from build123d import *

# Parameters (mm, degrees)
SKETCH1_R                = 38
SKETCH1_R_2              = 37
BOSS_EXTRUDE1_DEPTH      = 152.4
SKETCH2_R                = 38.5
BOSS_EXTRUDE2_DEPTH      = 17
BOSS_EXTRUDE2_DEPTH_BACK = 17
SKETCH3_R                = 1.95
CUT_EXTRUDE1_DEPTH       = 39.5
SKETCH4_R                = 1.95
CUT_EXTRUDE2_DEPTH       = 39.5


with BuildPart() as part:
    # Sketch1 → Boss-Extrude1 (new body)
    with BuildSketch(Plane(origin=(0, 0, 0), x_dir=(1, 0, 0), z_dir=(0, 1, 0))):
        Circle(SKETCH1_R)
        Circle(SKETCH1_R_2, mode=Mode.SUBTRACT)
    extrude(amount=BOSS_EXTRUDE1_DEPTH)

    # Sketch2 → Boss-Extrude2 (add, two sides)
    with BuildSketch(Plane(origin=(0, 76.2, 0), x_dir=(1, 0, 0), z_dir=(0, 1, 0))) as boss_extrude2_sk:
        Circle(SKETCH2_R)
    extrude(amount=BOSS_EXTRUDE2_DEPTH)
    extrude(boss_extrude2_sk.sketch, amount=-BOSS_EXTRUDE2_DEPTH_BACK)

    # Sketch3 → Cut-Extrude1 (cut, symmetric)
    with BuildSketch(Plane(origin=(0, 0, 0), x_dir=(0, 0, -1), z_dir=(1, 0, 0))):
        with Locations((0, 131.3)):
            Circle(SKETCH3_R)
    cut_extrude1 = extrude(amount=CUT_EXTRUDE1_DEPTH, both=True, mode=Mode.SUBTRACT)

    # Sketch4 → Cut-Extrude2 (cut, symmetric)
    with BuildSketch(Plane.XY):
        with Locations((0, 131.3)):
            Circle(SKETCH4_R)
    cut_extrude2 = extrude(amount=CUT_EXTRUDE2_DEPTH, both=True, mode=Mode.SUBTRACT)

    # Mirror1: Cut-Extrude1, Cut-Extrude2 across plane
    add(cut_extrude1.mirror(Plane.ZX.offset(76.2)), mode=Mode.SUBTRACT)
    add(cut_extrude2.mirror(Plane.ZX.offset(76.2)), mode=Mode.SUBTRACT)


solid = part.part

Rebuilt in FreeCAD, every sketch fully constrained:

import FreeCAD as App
import Part
import Sketcher

V = App.Vector

doc = App.newDocument("Part")
params = doc.addObject("Spreadsheet::Sheet", "Params")
for row, (alias, value) in enumerate([
    ("sketch1_diameter", "76 mm"),
    ("sketch1_diameter2", "74 mm"),
    ("pad1_length", "152.4 mm"),
    ("sketch2_diameter", "77 mm"),
    ("pad2_length", "17 mm"),
    ("pad2_length2", "17 mm"),
    ("sketch3_diameter", "3.9 mm"),
    ("pocket1_length", "79 mm"),
    ("sketch4_diameter", "3.9 mm"),
    ("pocket2_length", "79 mm"),
], start=1):
    params.set(f"A{row}", alias)
    params.set(f"B{row}", "=" + value)
    params.setAlias(f"B{row}", alias)

body = doc.addObject("PartDesign::Body", "Body")

# Sketch on XZ plane
sketch1 = body.newObject("Sketcher::SketchObject", "Sketch")
sketch1.AttachmentSupport = (doc.getObject("XZ_Plane"), [""])
sketch1.MapMode = "FlatFace"
sketch1.addGeometry(Part.Circle(V(0, 0, 0), V(0, 0, 1), 38), False)
sketch1.addGeometry(Part.Circle(V(0, 0, 0), V(0, 0, 1), 37), False)
sketch1.addConstraint(Sketcher.Constraint("Coincident", 0, 3, -1, 1))
sketch1.addConstraint(Sketcher.Constraint("Coincident", 1, 3, -1, 1))
sketch1.addConstraint(Sketcher.Constraint("Diameter", 0, 76.0))
sketch1.addConstraint(Sketcher.Constraint("Diameter", 1, 74.0))
sketch1.setExpression("Constraints[2]", "Params.sketch1_diameter")
sketch1.setExpression("Constraints[3]", "Params.sketch1_diameter2")
pad1 = body.newObject("PartDesign::Pad", "Pad")
pad1.Profile = sketch1
pad1.setExpression("Length", "Params.pad1_length")
pad1.Reversed = True

# Sketch on XZ plane
sketch2 = body.newObject("Sketcher::SketchObject", "Sketch001")
sketch2.AttachmentSupport = (doc.getObject("XZ_Plane"), [""])
sketch2.MapMode = "FlatFace"
sketch2.AttachmentOffset = App.Placement(V(0, 0, -76.2), App.Rotation())
sketch2.addGeometry(Part.Circle(V(0, 0, 0), V(0, 0, 1), 38), False)
sketch2.addConstraint(Sketcher.Constraint("Coincident", 0, 3, -1, 1))
sketch2.addConstraint(Sketcher.Constraint("Diameter", 0, 77.0))
sketch2.setExpression("Constraints[1]", "Params.sketch2_diameter")
pad2 = body.newObject("PartDesign::Pad", "Pad001")
pad2.Profile = sketch2
pad2.Type = "TwoLengths"
pad2.setExpression("Length", "Params.pad2_length")
pad2.setExpression("Length2", "Params.pad2_length2")
pad2.Reversed = True

# Sketch on YZ plane
sketch3 = body.newObject("Sketcher::SketchObject", "Sketch002")
sketch3.AttachmentSupport = (doc.getObject("YZ_Plane"), [""])
sketch3.MapMode = "FlatFace"
sketch3.addGeometry(Part.Circle(V(131.3, 0, 0), V(0, 0, 1), 1.9), False)
sketch3.addConstraint(Sketcher.Constraint("PointOnObject", 0, 3, -1))
sketch3.addConstraint(Sketcher.Constraint("Diameter", 0, 3.9))
sketch3.addConstraint(Sketcher.Constraint("DistanceX", -1, 1, 0, 3, 131.3))
sketch3.setExpression("Constraints[1]", "Params.sketch3_diameter")
pocket1 = body.newObject("PartDesign::Pocket", "Pocket")
pocket1.Profile = sketch3
pocket1.setExpression("Length", "Params.pocket1_length")
pocket1.Midplane = True

# Sketch on XY plane
sketch4 = body.newObject("Sketcher::SketchObject", "Sketch003")
sketch4.AttachmentSupport = (doc.getObject("XY_Plane"), [""])
sketch4.MapMode = "FlatFace"
sketch4.addGeometry(Part.Circle(V(0, 131.3, 0), V(0, 0, 1), 1.9), False)
sketch4.addConstraint(Sketcher.Constraint("PointOnObject", 0, 3, -2))
sketch4.addConstraint(Sketcher.Constraint("Diameter", 0, 3.9))
sketch4.addConstraint(Sketcher.Constraint("DistanceY", -1, 1, 0, 3, 131.3))
sketch4.setExpression("Constraints[1]", "Params.sketch4_diameter")
pocket2 = body.newObject("PartDesign::Pocket", "Pocket001")
pocket2.Profile = sketch4
pocket2.setExpression("Length", "Params.pocket2_length")
pocket2.Midplane = True
doc.recompute()

datumplane = body.newObject("PartDesign::Plane", "DatumPlane")
datumplane.AttachmentSupport = (doc.getObject("XZ_Plane"), [""])
datumplane.MapMode = "FlatFace"
datumplane.AttachmentOffset = App.Placement(V(0, 0, -76.2), App.Rotation())
mirrored = body.newObject("PartDesign::Mirrored", "Mirrored")
mirrored.Originals = [pocket1, pocket2]
mirrored.MirrorPlane = (datumplane, [""])
body.Tip = mirrored

doc.recompute()
